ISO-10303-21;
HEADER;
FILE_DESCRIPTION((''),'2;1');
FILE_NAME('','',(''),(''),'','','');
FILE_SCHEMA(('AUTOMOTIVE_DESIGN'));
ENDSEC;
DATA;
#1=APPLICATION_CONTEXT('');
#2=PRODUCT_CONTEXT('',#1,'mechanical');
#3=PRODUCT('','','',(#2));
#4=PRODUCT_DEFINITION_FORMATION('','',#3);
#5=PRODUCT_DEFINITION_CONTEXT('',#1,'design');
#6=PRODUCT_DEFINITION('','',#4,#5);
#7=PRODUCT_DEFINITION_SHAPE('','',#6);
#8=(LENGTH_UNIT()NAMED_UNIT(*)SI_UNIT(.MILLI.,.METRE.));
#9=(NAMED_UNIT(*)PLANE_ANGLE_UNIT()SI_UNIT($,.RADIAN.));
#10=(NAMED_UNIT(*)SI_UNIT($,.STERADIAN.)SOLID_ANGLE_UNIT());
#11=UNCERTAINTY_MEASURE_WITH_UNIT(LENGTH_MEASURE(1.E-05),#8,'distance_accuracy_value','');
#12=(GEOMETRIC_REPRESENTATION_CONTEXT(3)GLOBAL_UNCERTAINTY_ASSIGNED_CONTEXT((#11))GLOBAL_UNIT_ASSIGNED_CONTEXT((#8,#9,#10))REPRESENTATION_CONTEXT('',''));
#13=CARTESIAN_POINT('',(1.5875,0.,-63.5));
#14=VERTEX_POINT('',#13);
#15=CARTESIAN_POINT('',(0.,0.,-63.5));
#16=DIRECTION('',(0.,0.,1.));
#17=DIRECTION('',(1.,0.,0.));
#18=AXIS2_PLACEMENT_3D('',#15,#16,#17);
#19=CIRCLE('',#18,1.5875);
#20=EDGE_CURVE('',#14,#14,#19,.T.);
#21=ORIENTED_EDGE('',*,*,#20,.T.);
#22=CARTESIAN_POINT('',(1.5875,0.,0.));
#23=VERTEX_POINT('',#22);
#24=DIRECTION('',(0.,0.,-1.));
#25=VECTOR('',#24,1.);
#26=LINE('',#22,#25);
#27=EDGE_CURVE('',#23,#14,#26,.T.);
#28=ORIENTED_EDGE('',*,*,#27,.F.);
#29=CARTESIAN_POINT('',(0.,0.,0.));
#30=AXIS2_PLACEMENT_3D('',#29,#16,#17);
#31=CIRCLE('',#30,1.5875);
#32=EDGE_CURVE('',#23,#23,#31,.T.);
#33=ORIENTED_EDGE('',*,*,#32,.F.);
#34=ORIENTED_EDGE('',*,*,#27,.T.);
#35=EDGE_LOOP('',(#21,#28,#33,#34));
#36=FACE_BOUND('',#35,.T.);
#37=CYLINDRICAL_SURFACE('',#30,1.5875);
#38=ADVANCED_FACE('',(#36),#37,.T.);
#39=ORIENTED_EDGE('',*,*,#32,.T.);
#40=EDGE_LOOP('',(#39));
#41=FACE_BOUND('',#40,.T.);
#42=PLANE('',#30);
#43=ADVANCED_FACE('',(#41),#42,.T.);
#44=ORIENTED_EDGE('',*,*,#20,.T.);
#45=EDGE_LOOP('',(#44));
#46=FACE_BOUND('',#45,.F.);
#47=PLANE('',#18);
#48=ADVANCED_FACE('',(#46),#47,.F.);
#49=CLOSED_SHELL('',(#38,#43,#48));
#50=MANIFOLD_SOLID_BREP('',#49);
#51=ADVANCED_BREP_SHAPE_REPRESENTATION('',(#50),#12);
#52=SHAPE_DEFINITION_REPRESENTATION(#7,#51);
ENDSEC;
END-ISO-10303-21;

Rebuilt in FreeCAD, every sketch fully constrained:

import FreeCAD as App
import Part
import Sketcher
from FreeCAD import Vector
Q = App.Units.Quantity

doc = App.newDocument("Part")
body = doc.addObject("PartDesign::Body", "Body")

sketch1 = doc.addObject("Sketcher::SketchObject", "Sketch")
body.addObject(sketch1)
sketch1.AttachmentSupport = (doc.XY_Plane, [""])
sketch1.MapMode = "FlatFace"
sketch1.addGeometry(Part.Circle(Vector(0, 0, 0), Vector(0, 0, 1), 1.6), False)
sketch1.addConstraint(Sketcher.Constraint("Coincident", 0, 3, -1, 1))
sketch1.addConstraint(Sketcher.Constraint("Diameter", 0, Q("0.125 in")))
pad1 = doc.addObject("PartDesign::Pad", "Pad")
body.addObject(pad1)
pad1.Profile = sketch1
pad1.Length = Q("2.5 in")
pad1.Reversed = True

doc.recompute()
